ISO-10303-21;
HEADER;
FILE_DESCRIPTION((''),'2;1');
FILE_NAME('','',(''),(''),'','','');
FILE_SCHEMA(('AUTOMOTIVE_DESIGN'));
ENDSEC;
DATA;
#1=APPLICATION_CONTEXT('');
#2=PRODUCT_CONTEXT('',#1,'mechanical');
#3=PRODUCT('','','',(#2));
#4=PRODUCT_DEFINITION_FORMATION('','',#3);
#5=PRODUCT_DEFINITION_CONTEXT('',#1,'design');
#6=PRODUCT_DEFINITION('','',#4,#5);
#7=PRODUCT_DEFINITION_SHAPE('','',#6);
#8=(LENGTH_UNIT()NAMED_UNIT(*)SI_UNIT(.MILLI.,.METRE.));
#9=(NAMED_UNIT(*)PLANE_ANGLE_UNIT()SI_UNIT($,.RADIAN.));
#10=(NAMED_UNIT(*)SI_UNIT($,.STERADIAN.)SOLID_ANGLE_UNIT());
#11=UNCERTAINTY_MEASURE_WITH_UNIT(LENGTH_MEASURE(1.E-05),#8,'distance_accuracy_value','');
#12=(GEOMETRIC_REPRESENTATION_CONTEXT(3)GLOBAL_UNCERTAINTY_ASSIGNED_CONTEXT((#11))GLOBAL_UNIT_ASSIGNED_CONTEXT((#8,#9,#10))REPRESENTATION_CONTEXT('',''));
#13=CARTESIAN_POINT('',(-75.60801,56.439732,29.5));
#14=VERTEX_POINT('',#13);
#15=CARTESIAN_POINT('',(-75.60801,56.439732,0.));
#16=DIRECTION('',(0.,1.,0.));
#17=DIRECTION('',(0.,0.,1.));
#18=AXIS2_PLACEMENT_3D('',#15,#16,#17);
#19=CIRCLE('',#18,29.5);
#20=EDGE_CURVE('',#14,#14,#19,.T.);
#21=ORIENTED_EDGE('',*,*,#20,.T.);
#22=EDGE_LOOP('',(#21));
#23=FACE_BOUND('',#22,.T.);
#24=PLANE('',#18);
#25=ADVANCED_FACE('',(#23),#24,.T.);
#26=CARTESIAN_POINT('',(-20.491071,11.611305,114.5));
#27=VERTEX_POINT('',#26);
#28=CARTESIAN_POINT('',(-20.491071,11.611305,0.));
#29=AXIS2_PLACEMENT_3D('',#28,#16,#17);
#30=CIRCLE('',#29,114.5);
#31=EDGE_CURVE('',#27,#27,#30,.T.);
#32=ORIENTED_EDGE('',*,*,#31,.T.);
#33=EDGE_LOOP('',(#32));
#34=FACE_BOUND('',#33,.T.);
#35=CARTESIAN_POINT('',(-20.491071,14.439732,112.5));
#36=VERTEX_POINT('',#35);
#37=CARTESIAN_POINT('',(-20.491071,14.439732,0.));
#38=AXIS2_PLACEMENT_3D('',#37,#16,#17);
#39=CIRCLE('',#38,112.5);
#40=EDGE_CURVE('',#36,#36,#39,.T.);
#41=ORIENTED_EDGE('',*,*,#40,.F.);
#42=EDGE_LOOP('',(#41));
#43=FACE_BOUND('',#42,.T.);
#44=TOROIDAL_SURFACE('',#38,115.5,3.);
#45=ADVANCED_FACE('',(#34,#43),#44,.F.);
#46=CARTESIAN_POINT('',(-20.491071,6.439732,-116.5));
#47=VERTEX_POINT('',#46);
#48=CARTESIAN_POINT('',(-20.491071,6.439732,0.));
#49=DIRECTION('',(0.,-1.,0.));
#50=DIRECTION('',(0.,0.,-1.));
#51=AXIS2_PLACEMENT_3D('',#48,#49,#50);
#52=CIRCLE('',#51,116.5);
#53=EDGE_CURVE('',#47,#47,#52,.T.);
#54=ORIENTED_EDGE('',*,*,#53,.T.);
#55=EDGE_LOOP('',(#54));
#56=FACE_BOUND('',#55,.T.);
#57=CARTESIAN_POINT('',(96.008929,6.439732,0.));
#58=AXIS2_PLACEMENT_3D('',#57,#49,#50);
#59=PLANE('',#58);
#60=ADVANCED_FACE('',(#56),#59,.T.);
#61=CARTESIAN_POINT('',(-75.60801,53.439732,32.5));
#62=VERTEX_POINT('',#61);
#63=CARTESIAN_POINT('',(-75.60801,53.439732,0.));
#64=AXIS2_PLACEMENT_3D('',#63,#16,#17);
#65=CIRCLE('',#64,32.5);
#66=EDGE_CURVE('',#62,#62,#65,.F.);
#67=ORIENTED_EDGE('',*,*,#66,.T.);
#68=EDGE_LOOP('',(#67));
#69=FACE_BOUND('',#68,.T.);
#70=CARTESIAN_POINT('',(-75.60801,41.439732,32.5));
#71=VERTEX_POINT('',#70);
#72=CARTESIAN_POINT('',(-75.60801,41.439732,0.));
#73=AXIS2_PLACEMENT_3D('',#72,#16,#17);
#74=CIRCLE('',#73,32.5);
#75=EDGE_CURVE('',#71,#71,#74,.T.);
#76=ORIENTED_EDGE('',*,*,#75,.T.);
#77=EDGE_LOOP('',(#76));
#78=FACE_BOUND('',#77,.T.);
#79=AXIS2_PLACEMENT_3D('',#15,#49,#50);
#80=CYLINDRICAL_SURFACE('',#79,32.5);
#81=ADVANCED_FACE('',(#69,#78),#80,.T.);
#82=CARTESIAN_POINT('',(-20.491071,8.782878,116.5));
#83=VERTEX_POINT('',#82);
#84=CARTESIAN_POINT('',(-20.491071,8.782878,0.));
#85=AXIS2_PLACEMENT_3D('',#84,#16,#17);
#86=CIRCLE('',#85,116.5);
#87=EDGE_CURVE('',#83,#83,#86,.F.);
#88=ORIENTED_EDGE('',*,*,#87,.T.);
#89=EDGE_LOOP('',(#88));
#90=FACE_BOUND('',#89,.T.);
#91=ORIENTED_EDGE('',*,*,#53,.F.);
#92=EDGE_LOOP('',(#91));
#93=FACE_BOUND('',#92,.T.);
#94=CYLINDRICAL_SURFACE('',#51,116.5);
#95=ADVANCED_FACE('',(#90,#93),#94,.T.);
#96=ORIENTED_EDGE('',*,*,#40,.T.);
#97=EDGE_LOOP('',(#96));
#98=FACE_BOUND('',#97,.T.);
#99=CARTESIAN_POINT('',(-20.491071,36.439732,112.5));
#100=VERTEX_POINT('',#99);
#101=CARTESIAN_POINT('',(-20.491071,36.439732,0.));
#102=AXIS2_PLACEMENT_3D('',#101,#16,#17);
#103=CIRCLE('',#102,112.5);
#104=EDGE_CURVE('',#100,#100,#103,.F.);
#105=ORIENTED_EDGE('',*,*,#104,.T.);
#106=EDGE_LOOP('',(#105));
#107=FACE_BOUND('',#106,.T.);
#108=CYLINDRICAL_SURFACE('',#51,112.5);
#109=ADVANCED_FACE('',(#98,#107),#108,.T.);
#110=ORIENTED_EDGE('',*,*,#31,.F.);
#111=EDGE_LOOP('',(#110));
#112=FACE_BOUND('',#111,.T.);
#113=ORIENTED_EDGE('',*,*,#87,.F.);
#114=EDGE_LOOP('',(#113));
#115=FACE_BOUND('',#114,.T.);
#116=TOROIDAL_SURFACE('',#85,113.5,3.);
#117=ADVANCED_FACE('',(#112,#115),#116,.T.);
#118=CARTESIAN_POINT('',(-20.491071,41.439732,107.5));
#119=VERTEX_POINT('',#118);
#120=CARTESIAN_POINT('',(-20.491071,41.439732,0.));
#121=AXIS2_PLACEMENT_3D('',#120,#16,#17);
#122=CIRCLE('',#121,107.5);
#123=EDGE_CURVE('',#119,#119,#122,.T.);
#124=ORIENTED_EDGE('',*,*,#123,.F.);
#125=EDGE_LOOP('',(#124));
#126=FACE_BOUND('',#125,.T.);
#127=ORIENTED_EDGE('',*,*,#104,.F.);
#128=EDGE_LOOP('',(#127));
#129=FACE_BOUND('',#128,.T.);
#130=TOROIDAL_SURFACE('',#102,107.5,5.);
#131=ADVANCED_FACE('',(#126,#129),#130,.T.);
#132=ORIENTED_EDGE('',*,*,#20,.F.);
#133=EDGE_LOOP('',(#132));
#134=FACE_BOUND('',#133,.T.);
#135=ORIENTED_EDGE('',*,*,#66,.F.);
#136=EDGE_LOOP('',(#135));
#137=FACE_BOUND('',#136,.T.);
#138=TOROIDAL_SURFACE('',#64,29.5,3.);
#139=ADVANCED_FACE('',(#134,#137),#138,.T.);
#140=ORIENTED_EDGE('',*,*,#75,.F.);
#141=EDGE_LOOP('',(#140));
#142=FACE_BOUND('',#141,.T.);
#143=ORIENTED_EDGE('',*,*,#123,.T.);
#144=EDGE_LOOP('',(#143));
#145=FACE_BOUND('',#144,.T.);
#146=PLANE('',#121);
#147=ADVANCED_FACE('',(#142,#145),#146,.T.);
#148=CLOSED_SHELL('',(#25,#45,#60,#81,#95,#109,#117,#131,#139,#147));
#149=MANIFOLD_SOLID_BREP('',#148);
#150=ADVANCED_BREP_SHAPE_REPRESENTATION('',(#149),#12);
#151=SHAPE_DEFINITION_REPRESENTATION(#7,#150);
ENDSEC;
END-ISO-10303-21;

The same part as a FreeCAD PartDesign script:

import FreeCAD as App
import Part
import Sketcher
from FreeCAD import Vector
Q = App.Units.Quantity


def edges_at(feature, points):
    """Names of the edges that pass closest to the given points."""
    edges = feature.Shape.Edges
    near = lambda p: min(range(len(edges)), key=lambda i: edges[i].distToShape(Part.Vertex(*p))[0])
    return sorted({f"Edge{near(p) + 1}" for p in points})

doc = App.newDocument("Part")
params = doc.addObject("Spreadsheet::Sheet", "Params")
for row, (alias, value) in enumerate([
    ("sketch1_width", "4 mm"),
    ("sketch1_height", "35 mm"),
    ("sketch1_height2", "5 mm"),
    ("sketch1_width2", "112.5 mm"),
    ("revolution_angle", "360 deg"),
    ("fillet_radius", "3 mm"),
    ("fillet2_radius", "3 mm"),
    ("fillet3_radius", "5 mm"),
    ("sketch2_diameter", "65 mm"),
    ("pad1_length", "15 mm"),
    ("fillet4_radius", "3 mm"),
], start=1):
    params.set(f"A{row}", alias)
    params.set(f"B{row}", "=" + value)
    params.setAlias(f"B{row}", alias)

body = doc.addObject("PartDesign::Body", "Body")

# Sketch on XY plane
sketch1 = body.newObject("Sketcher::SketchObject", "Sketch")
sketch1.AttachmentSupport = (doc.getObject("XY_Plane"), [""])
sketch1.MapMode = "FlatFace"
sketch1.addGeometry([
    Part.LineSegment(Vector(92, 41.4, 0), Vector(-20.5, 41.4, 0)),  # 0
    Part.LineSegment(Vector(-20.5, 41.4, 0), Vector(-20.5, 6.4, 0)),  # 1
    Part.LineSegment(Vector(-20.5, 6.4, 0), Vector(96, 6.4, 0)),  # 2
    Part.LineSegment(Vector(96, 6.4, 0), Vector(96, 11.4, 0)),  # 3
    Part.LineSegment(Vector(96, 11.4, 0), Vector(92, 11.4, 0)),  # 4
    Part.LineSegment(Vector(92, 11.4, 0), Vector(92, 41.4, 0)),  # 5
], False)
sketch1.addGeometry(Part.LineSegment(Vector(-20.5, 6.4, 0), Vector(-20.5, 41.4, 0)), True)  # axis
sketch1.addConstraint([
    Sketcher.Constraint("Coincident", 0, 2, 1, 1),
    Sketcher.Constraint("Coincident", 1, 2, 2, 1),
    Sketcher.Constraint("Coincident", 2, 2, 3, 1),
    Sketcher.Constraint("Coincident", 3, 2, 4, 1),
    Sketcher.Constraint("Coincident", 4, 2, 5, 1),
    Sketcher.Constraint("Coincident", 5, 2, 0, 1),
    Sketcher.Constraint("Horizontal", 0),
    Sketcher.Constraint("Vertical", 1),
    Sketcher.Constraint("Horizontal", 2),
    Sketcher.Constraint("Vertical", 3),
    Sketcher.Constraint("Horizontal", 4),
    Sketcher.Constraint("Vertical", 5),
    Sketcher.Constraint("Vertical", 6),
    Sketcher.Constraint("Coincident", 6, 1, 1, 2),
    Sketcher.Constraint("Horizontal", 5, 2, 6, 2),
    Sketcher.Constraint("DistanceX", 4, 2, 4, 1, Q("4 mm")),
    Sketcher.Constraint("DistanceY", 1, 2, 1, 1, Q("35 mm")),
    Sketcher.Constraint("DistanceY", 3, 1, 3, 2, Q("5 mm")),
    Sketcher.Constraint("DistanceX", 0, 2, 0, 1, Q("112.5 mm")),
    Sketcher.Constraint("DistanceX", 0, 2, -1, 1, Q("20.491071 mm")),
    Sketcher.Constraint("DistanceY", -1, 1, 0, 2, Q("41.439732 mm")),
])
sketch1.setExpression("Constraints[15]", "Params.sketch1_width")
sketch1.setExpression("Constraints[16]", "Params.sketch1_height")
sketch1.setExpression("Constraints[17]", "Params.sketch1_height2")
sketch1.setExpression("Constraints[18]", "Params.sketch1_width2")
revolution = body.newObject("PartDesign::Revolution", "Revolution")
revolution.Profile = sketch1
revolution.ReferenceAxis = (sketch1, ["Axis0"])
revolution.setExpression("Angle", "Params.revolution_angle")
doc.recompute()

fillet = body.newObject("PartDesign::Fillet", "Fillet")
fillet.Base = (revolution, edges_at(revolution, [(-132.991, 11.44, 0)]))
fillet.setExpression("Radius", "Params.fillet_radius")
doc.recompute()

fillet2 = body.newObject("PartDesign::Fillet", "Fillet001")
fillet2.Base = (fillet, edges_at(fillet, [(-136.991, 11.44, 0)]))
fillet2.setExpression("Radius", "Params.fillet2_radius")
doc.recompute()

fillet3 = body.newObject("PartDesign::Fillet", "Fillet002")
fillet3.Base = (fillet2, edges_at(fillet2, [(-132.991, 41.44, 0)]))
fillet3.setExpression("Radius", "Params.fillet3_radius")

# Sketch on XZ plane
sketch2 = body.newObject("Sketcher::SketchObject", "Sketch001")
sketch2.AttachmentSupport = (doc.getObject("XZ_Plane"), [""])
sketch2.MapMode = "FlatFace"
sketch2.AttachmentOffset = App.Placement(Vector(0, 0, -41.439732), App.Rotation())
sketch2.addGeometry(Part.Circle(Vector(-76, 0, 0), Vector(0, 0, 1), 32), False)
sketch2.addConstraint([
    Sketcher.Constraint("PointOnObject", 0, 3, -1),
    Sketcher.Constraint("Diameter", 0, Q("65 mm")),
    Sketcher.Constraint("DistanceX", 0, 3, -1, 1, Q("75.60801 mm")),
])
sketch2.setExpression("Constraints[1]", "Params.sketch2_diameter")
pad1 = body.newObject("PartDesign::Pad", "Pad")
pad1.Profile = sketch2
pad1.setExpression("Length", "Params.pad1_length")
pad1.Reversed = True
doc.recompute()

fillet4 = body.newObject("PartDesign::Fillet", "Fillet003")
fillet4.Base = (pad1, edges_at(pad1, [(-108.108, 56.44, 0)]))
fillet4.setExpression("Radius", "Params.fillet4_radius")

doc.recompute()
